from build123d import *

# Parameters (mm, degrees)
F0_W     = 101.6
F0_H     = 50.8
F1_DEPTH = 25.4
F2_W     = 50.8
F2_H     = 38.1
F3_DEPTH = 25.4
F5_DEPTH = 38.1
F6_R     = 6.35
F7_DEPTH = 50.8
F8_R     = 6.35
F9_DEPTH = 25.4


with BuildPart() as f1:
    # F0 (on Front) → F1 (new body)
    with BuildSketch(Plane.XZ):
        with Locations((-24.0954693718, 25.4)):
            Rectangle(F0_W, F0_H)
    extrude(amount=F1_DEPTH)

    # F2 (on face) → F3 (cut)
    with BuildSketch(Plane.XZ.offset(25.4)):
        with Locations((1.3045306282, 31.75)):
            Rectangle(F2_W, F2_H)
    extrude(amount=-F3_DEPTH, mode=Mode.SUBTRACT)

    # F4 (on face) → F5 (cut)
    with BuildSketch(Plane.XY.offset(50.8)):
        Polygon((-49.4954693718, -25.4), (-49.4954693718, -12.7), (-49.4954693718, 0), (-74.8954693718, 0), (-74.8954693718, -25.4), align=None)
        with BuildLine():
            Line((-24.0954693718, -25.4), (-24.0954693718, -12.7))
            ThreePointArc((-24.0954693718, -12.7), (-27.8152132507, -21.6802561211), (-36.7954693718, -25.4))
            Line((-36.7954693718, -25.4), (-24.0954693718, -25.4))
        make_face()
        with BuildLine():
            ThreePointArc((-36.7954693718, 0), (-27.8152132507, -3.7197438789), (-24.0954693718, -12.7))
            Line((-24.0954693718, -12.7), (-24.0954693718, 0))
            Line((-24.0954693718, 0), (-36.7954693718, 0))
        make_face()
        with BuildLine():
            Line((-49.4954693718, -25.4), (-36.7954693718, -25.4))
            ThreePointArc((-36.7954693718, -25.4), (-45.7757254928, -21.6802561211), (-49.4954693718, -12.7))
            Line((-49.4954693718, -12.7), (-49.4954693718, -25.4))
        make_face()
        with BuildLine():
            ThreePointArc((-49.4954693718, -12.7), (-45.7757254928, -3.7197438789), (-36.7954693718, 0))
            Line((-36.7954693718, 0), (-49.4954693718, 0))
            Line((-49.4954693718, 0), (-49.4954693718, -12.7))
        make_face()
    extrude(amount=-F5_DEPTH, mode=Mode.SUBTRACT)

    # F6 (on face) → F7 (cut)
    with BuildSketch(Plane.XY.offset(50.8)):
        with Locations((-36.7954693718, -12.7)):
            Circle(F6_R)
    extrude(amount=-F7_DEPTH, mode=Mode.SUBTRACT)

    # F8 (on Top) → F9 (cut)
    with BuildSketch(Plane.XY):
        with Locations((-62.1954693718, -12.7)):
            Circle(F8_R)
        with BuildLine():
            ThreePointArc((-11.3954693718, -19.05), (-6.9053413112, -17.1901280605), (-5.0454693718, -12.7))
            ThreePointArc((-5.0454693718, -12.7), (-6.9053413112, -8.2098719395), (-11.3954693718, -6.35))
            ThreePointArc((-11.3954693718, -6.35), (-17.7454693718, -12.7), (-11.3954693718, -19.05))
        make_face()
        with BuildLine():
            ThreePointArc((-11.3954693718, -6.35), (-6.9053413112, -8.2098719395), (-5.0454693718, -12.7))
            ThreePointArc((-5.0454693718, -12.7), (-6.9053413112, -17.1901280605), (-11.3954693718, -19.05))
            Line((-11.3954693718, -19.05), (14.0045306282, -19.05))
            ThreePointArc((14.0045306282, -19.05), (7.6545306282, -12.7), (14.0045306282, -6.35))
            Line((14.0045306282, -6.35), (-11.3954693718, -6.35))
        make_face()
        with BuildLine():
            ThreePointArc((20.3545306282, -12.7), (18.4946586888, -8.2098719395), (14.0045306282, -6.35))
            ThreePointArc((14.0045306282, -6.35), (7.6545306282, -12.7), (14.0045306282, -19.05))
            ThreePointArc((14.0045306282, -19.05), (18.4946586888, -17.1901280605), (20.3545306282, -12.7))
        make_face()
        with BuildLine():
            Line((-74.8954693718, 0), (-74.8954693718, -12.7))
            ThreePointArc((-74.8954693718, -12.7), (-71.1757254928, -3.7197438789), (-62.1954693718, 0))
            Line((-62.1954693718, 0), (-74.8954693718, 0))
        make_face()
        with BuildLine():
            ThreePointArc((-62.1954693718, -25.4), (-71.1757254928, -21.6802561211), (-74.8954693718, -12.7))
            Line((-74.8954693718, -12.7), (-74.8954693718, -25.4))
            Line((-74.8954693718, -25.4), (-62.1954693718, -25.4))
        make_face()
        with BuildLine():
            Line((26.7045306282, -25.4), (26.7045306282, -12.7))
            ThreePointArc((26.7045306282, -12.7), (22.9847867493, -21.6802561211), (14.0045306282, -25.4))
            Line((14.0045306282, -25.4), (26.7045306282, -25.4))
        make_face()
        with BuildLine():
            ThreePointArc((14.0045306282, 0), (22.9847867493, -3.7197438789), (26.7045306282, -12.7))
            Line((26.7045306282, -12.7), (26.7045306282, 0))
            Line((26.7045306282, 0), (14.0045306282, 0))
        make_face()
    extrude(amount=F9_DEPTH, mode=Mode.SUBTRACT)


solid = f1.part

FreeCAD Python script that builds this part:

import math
import FreeCAD as App
import Part
import Sketcher
Q = App.Units.Quantity

doc = App.newDocument("Part")
body = doc.addObject("PartDesign::Body", "Body")

# Sketch on XZ plane
sketch1 = body.newObject("Sketcher::SketchObject", "Sketch")
sketch1.AttachmentSupport = (doc.getObject("XZ_Plane"), [""])
sketch1.MapMode = "FlatFace"
sketch1.addGeometry(Part.LineSegment(App.Vector(-75, 51, 0), App.Vector(-75, 0, 0)), False)
sketch1.addGeometry(Part.LineSegment(App.Vector(-75, 0, 0), App.Vector(27, 0, 0)), False)
sketch1.addGeometry(Part.LineSegment(App.Vector(27, 0, 0), App.Vector(27, 51, 0)), False)
sketch1.addGeometry(Part.LineSegment(App.Vector(27, 51, 0), App.Vector(-75, 51, 0)), False)
sketch1.addConstraint(Sketcher.Constraint("Coincident", 0, 2, 1, 1))
sketch1.addConstraint(Sketcher.Constraint("Coincident", 1, 2, 2, 1))
sketch1.addConstraint(Sketcher.Constraint("Coincident", 2, 2, 3, 1))
sketch1.addConstraint(Sketcher.Constraint("Coincident", 3, 2, 0, 1))
sketch1.addConstraint(Sketcher.Constraint("Vertical", 0))
sketch1.addConstraint(Sketcher.Constraint("Horizontal", 1))
sketch1.addConstraint(Sketcher.Constraint("Vertical", 2))
sketch1.addConstraint(Sketcher.Constraint("Horizontal", 3))
sketch1.addConstraint(Sketcher.Constraint("PointOnObject", 0, 2, -1))
sketch1.addConstraint(Sketcher.Constraint("DistanceX", 1, 1, 1, 2, Q("4 in")))
sketch1.addConstraint(Sketcher.Constraint("DistanceY", 0, 2, 0, 1, Q("2 in")))
sketch1.addConstraint(Sketcher.Constraint("DistanceX", 0, 2, -1, 1, Q("74.895469 mm")))
pad1 = body.newObject("PartDesign::Pad", "Pad")
pad1.Profile = sketch1
pad1.Length = Q("1 in")

# Sketch on XZ plane
sketch2 = body.newObject("Sketcher::SketchObject", "Sketch001")
sketch2.AttachmentSupport = (doc.getObject("XZ_Plane"), [""])
sketch2.MapMode = "FlatFace"
sketch2.AttachmentOffset = App.Placement(App.Vector(0, 0, 1 * 25.4), App.Rotation())
sketch2.addGeometry(Part.LineSegment(App.Vector(-24, 51, 0), App.Vector(-24, 13, 0)), False)
sketch2.addGeometry(Part.LineSegment(App.Vector(-24, 13, 0), App.Vector(27, 13, 0)), False)
sketch2.addGeometry(Part.LineSegment(App.Vector(27, 13, 0), App.Vector(27, 51, 0)), False)
sketch2.addGeometry(Part.LineSegment(App.Vector(27, 51, 0), App.Vector(-24, 51, 0)), False)
sketch2.addConstraint(Sketcher.Constraint("Coincident", 0, 2, 1, 1))
sketch2.addConstraint(Sketcher.Constraint("Coincident", 1, 2, 2, 1))
sketch2.addConstraint(Sketcher.Constraint("Coincident", 2, 2, 3, 1))
sketch2.addConstraint(Sketcher.Constraint("Coincident", 3, 2, 0, 1))
sketch2.addConstraint(Sketcher.Constraint("Vertical", 0))
sketch2.addConstraint(Sketcher.Constraint("Horizontal", 1))
sketch2.addConstraint(Sketcher.Constraint("Vertical", 2))
sketch2.addConstraint(Sketcher.Constraint("Horizontal", 3))
sketch2.addConstraint(Sketcher.Constraint("DistanceX", 1, 1, 1, 2, Q("2 in")))
sketch2.addConstraint(Sketcher.Constraint("DistanceY", 0, 2, 0, 1, Q("1.5 in")))
sketch2.addConstraint(Sketcher.Constraint("DistanceY", -1, 1, 2, 2, Q("2 in")))
sketch2.addConstraint(Sketcher.Constraint("DistanceX", 0, 2, -1, 1, Q("24.095469 mm")))
pocket1 = body.newObject("PartDesign::Pocket", "Pocket")
pocket1.Profile = sketch2
pocket1.Length = Q("1 in")

# Sketch on XY plane
sketch3 = body.newObject("Sketcher::SketchObject", "Sketch002")
sketch3.AttachmentSupport = (doc.getObject("XY_Plane"), [""])
sketch3.MapMode = "FlatFace"
sketch3.AttachmentOffset = App.Placement(App.Vector(0, 0, 2 * 25.4), App.Rotation())
sketch3.addGeometry(Part.LineSegment(App.Vector(-75, 0, 0), App.Vector(-75, -25, 0)), False)
sketch3.addGeometry(Part.LineSegment(App.Vector(-75, -25, 0), App.Vector(-37, -25, 0)), False)
sketch3.addGeometry(Part.ArcOfCircle(Part.Circle(App.Vector(-37, -13, 0), App.Vector(0, 0, 1), 13), math.radians(180), math.radians(270)), False)
sketch3.addGeometry(Part.ArcOfCircle(Part.Circle(App.Vector(-37, -13, 0), App.Vector(0, 0, 1), 13), math.radians(90), math.radians(180)), False)
sketch3.addGeometry(Part.LineSegment(App.Vector(-37, 0, 0), App.Vector(-75, 0, 0)), False)
sketch3.addGeometry(Part.LineSegment(App.Vector(-24, -25, 0), App.Vector(-24, -13, 0)), False)
sketch3.addGeometry(Part.ArcOfCircle(Part.Circle(App.Vector(-37, -13, 0), App.Vector(0, 0, 1), 13), math.radians(-90), math.radians(0)), False)
sketch3.addGeometry(Part.LineSegment(App.Vector(-37, -25, 0), App.Vector(-24, -25, 0)), False)
sketch3.addGeometry(Part.ArcOfCircle(Part.Circle(App.Vector(-37, -13, 0), App.Vector(0, 0, 1), 13), math.radians(0), math.radians(90)), False)
sketch3.addGeometry(Part.LineSegment(App.Vector(-24, -13, 0), App.Vector(-24, 0, 0)), False)
sketch3.addGeometry(Part.LineSegment(App.Vector(-24, 0, 0), App.Vector(-37, 0, 0)), False)
sketch3.addConstraint(Sketcher.Constraint("Coincident", 0, 2, 1, 1))
sketch3.addConstraint(Sketcher.Constraint("Tangent", 1, 2, 2, 2))
sketch3.addConstraint(Sketcher.Constraint("Tangent", 2, 1, 3, 2))
sketch3.addConstraint(Sketcher.Constraint("Tangent", 3, 1, 4, 1))
sketch3.addConstraint(Sketcher.Constraint("Coincident", 4, 2, 0, 1))
sketch3.addConstraint(Sketcher.Constraint("Tangent", 5, 2, 6, 2))
sketch3.addConstraint(Sketcher.Constraint("Tangent", 6, 1, 7, 1))
sketch3.addConstraint(Sketcher.Constraint("Coincident", 7, 2, 5, 1))
sketch3.addConstraint(Sketcher.Constraint("Tangent", 8, 1, 9, 1))
sketch3.addConstraint(Sketcher.Constraint("Coincident", 9, 2, 10, 1))
sketch3.addConstraint(Sketcher.Constraint("Tangent", 10, 2, 8, 2))
sketch3.addConstraint(Sketcher.Constraint("Vertical", 0))
sketch3.addConstraint(Sketcher.Constraint("Horizontal", 1))
sketch3.addConstraint(Sketcher.Constraint("Horizontal", 4))
sketch3.addConstraint(Sketcher.Constraint("Vertical", 5))
sketch3.addConstraint(Sketcher.Constraint("Horizontal", 7))
sketch3.addConstraint(Sketcher.Constraint("Vertical", 9))
sketch3.addConstraint(Sketcher.Constraint("Horizontal", 10))
sketch3.addConstraint(Sketcher.Constraint("Coincident", 6, 3, 2, 3))
sketch3.addConstraint(Sketcher.Constraint("Coincident", 8, 3, 2, 3))
sketch3.addConstraint(Sketcher.Constraint("Coincident", 10, 2, 3, 1))
sketch3.addConstraint(Sketcher.Constraint("Equal", 3, 6))
sketch3.addConstraint(Sketcher.Constraint("PointOnObject", 3, 1, -1))
sketch3.addConstraint(Sketcher.Constraint("Horizontal", 8, 3, 2, 1))
sketch3.addConstraint(Sketcher.Constraint("Radius", 2, Q("0.5 in")))
sketch3.addConstraint(Sketcher.Constraint("DistanceX", 1, 1, 1, 2, Q("1.5 in")))
sketch3.addConstraint(Sketcher.Constraint("DistanceX", 2, 3, -1, 1, Q("36.795469 mm")))
pocket2 = body.newObject("PartDesign::Pocket", "Pocket001")
pocket2.Profile = sketch3
pocket2.Length = Q("1.5 in")

# Sketch on XY plane
sketch4 = body.newObject("Sketcher::SketchObject", "Sketch003")
sketch4.AttachmentSupport = (doc.getObject("XY_Plane"), [""])
sketch4.MapMode = "FlatFace"
sketch4.AttachmentOffset = App.Placement(App.Vector(0, 0, 2 * 25.4), App.Rotation())
sketch4.addGeometry(Part.Circle(App.Vector(-37, -13, 0), App.Vector(0, 0, 1), 6), False)
sketch4.addConstraint(Sketcher.Constraint("Diameter", 0, Q("0.5 in")))
sketch4.addConstraint(Sketcher.Constraint("DistanceY", 0, 3, -1, 1, Q("0.5 in")))
sketch4.addConstraint(Sketcher.Constraint("DistanceX", 0, 3, -1, 1, Q("36.795469 mm")))
pocket3 = body.newObject("PartDesign::Pocket", "Pocket002")
pocket3.Profile = sketch4
pocket3.Length = Q("2 in")

# Sketch on XY plane
sketch5 = body.newObject("Sketcher::SketchObject", "Sketch004")
sketch5.AttachmentSupport = (doc.getObject("XY_Plane"), [""])
sketch5.MapMode = "FlatFace"
sketch5.addGeometry(Part.Circle(App.Vector(-62, -13, 0), App.Vector(0, 0, 1), 6), False)
sketch5.addGeometry(Part.ArcOfCircle(Part.Circle(App.Vector(-11, -13, 0), App.Vector(0, 0, 1), 6), math.radians(90), math.radians(270)), False)
sketch5.addGeometry(Part.LineSegment(App.Vector(-11, -19, 0), App.Vector(14, -19, 0)), False)
sketch5.addGeometry(Part.ArcOfCircle(Part.Circle(App.Vector(14, -13, 0), App.Vector(0, 0, 1), 6), math.radians(-90), math.radians(0)), False)
sketch5.addGeometry(Part.ArcOfCircle(Part.Circle(App.Vector(14, -13, 0), App.Vector(0, 0, 1), 6), math.radians(0), math.radians(90)), False)
sketch5.addGeometry(Part.LineSegment(App.Vector(14, -6, 0), App.Vector(-11, -6, 0)), False)
sketch5.addGeometry(Part.LineSegment(App.Vector(-75, 0, 0), App.Vector(-75, -13, 0)), False)
sketch5.addGeometry(Part.ArcOfCircle(Part.Circle(App.Vector(-62, -13, 0), App.Vector(0, 0, 1), 13), math.radians(90), math.radians(180)), False)
sketch5.addGeometry(Part.LineSegment(App.Vector(-62, 0, 0), App.Vector(-75, 0, 0)), False)
sketch5.addGeometry(Part.ArcOfCircle(Part.Circle(App.Vector(-62, -13, 0), App.Vector(0, 0, 1), 13), math.radians(180), math.radians(270)), False)
sketch5.addGeometry(Part.LineSegment(App.Vector(-75, -13, 0), App.Vector(-75, -25, 0)), False)
sketch5.addGeometry(Part.LineSegment(App.Vector(-75, -25, 0), App.Vector(-62, -25, 0)), False)
sketch5.addGeometry(Part.LineSegment(App.Vector(27, -25, 0), App.Vector(27, -13, 0)), False)
sketch5.addGeometry(Part.ArcOfCircle(Part.Circle(App.Vector(14, -13, 0), App.Vector(0, 0, 1), 13), math.radians(-90), math.radians(0)), False)
sketch5.addGeometry(Part.LineSegment(App.Vector(14, -25, 0), App.Vector(27, -25, 0)), False)
sketch5.addGeometry(Part.ArcOfCircle(Part.Circle(App.Vector(14, -13, 0), App.Vector(0, 0, 1), 13), math.radians(0), math.radians(90)), False)
sketch5.addGeometry(Part.LineSegment(App.Vector(27, -13, 0), App.Vector(27, 0, 0)), False)
sketch5.addGeometry(Part.LineSegment(App.Vector(27, 0, 0), App.Vector(14, 0, 0)), False)
sketch5.addConstraint(Sketcher.Constraint("Tangent", 1, 2, 2, 1))
sketch5.addConstraint(Sketcher.Constraint("Tangent", 2, 2, 3, 1))
sketch5.addConstraint(Sketcher.Constraint("Tangent", 3, 2, 4, 1))
sketch5.addConstraint(Sketcher.Constraint("Tangent", 4, 2, 5, 1))
sketch5.addConstraint(Sketcher.Constraint("Tangent", 5, 2, 1, 1))
sketch5.addConstraint(Sketcher.Constraint("Tangent", 6, 2, 7, 2))
sketch5.addConstraint(Sketcher.Constraint("Tangent", 7, 1, 8, 1))
sketch5.addConstraint(Sketcher.Constraint("Coincident", 8, 2, 6, 1))
sketch5.addConstraint(Sketcher.Constraint("Tangent", 9, 1, 10, 1))
sketch5.addConstraint(Sketcher.Constraint("Coincident", 10, 2, 11, 1))
sketch5.addConstraint(Sketcher.Constraint("Tangent", 11, 2, 9, 2))
sketch5.addConstraint(Sketcher.Constraint("Tangent", 12, 2, 13, 2))
sketch5.addConstraint(Sketcher.Constraint("Tangent", 13, 1, 14, 1))
sketch5.addConstraint(Sketcher.Constraint("Coincident", 14, 2, 12, 1))
sketch5.addConstraint(Sketcher.Constraint("Tangent", 15, 1, 16, 1))
sketch5.addConstraint(Sketcher.Constraint("Coincident", 16, 2, 17, 1))
sketch5.addConstraint(Sketcher.Constraint("Tangent", 17, 2, 15, 2))
sketch5.addConstraint(Sketcher.Constraint("Horizontal", 2))
sketch5.addConstraint(Sketcher.Constraint("Horizontal", 5))
sketch5.addConstraint(Sketcher.Constraint("Vertical", 6))
sketch5.addConstraint(Sketcher.Constraint("Horizontal", 8))
sketch5.addConstraint(Sketcher.Constraint("Vertical", 10))
sketch5.addConstraint(Sketcher.Constraint("Horizontal", 11))
sketch5.addConstraint(Sketcher.Constraint("Vertical", 12))
sketch5.addConstraint(Sketcher.Constraint("Horizontal", 14))
sketch5.addConstraint(Sketcher.Constraint("Vertical", 16))
sketch5.addConstraint(Sketcher.Constraint("Horizontal", 17))
sketch5.addConstraint(Sketcher.Constraint("Coincident", 7, 3, 0, 3))
sketch5.addConstraint(Sketcher.Constraint("Coincident", 9, 3, 0, 3))
sketch5.addConstraint(Sketcher.Constraint("Coincident", 13, 3, 3, 3))
sketch5.addConstraint(Sketcher.Constraint("Coincident", 15, 3, 3, 3))
sketch5.addConstraint(Sketcher.Constraint("Equal", 0, 1))
sketch5.addConstraint(Sketcher.Constraint("Equal", 1, 3))
sketch5.addConstraint(Sketcher.Constraint("Equal", 7, 9))
sketch5.addConstraint(Sketcher.Constraint("Equal", 9, 13))
sketch5.addConstraint(Sketcher.Constraint("Equal", 13, 15))
sketch5.addConstraint(Sketcher.Constraint("PointOnObject", 7, 1, -1))
sketch5.addConstraint(Sketcher.Constraint("PointOnObject", 16, 2, -1))
sketch5.addConstraint(Sketcher.Constraint("Horizontal", 15, 3, 3, 2))
sketch5.addConstraint(Sketcher.Constraint("Diameter", 0, Q("0.5 in")))
sketch5.addConstraint(Sketcher.Constraint("Radius", 7, Q("0.5 in")))
sketch5.addConstraint(Sketcher.Constraint("DistanceX", 2, 1, 2, 2, Q("1 in")))
sketch5.addConstraint(Sketcher.Constraint("DistanceX", 0, 3, 1, 3, Q("2 in")))
sketch5.addConstraint(Sketcher.Constraint("DistanceX", 0, 3, -1, 1, Q("62.195469 mm")))
pocket4 = body.newObject("PartDesign::Pocket", "Pocket003")
pocket4.Profile = sketch5
pocket4.Length = Q("1 in")
pocket4.Reversed = True

doc.recompute()
